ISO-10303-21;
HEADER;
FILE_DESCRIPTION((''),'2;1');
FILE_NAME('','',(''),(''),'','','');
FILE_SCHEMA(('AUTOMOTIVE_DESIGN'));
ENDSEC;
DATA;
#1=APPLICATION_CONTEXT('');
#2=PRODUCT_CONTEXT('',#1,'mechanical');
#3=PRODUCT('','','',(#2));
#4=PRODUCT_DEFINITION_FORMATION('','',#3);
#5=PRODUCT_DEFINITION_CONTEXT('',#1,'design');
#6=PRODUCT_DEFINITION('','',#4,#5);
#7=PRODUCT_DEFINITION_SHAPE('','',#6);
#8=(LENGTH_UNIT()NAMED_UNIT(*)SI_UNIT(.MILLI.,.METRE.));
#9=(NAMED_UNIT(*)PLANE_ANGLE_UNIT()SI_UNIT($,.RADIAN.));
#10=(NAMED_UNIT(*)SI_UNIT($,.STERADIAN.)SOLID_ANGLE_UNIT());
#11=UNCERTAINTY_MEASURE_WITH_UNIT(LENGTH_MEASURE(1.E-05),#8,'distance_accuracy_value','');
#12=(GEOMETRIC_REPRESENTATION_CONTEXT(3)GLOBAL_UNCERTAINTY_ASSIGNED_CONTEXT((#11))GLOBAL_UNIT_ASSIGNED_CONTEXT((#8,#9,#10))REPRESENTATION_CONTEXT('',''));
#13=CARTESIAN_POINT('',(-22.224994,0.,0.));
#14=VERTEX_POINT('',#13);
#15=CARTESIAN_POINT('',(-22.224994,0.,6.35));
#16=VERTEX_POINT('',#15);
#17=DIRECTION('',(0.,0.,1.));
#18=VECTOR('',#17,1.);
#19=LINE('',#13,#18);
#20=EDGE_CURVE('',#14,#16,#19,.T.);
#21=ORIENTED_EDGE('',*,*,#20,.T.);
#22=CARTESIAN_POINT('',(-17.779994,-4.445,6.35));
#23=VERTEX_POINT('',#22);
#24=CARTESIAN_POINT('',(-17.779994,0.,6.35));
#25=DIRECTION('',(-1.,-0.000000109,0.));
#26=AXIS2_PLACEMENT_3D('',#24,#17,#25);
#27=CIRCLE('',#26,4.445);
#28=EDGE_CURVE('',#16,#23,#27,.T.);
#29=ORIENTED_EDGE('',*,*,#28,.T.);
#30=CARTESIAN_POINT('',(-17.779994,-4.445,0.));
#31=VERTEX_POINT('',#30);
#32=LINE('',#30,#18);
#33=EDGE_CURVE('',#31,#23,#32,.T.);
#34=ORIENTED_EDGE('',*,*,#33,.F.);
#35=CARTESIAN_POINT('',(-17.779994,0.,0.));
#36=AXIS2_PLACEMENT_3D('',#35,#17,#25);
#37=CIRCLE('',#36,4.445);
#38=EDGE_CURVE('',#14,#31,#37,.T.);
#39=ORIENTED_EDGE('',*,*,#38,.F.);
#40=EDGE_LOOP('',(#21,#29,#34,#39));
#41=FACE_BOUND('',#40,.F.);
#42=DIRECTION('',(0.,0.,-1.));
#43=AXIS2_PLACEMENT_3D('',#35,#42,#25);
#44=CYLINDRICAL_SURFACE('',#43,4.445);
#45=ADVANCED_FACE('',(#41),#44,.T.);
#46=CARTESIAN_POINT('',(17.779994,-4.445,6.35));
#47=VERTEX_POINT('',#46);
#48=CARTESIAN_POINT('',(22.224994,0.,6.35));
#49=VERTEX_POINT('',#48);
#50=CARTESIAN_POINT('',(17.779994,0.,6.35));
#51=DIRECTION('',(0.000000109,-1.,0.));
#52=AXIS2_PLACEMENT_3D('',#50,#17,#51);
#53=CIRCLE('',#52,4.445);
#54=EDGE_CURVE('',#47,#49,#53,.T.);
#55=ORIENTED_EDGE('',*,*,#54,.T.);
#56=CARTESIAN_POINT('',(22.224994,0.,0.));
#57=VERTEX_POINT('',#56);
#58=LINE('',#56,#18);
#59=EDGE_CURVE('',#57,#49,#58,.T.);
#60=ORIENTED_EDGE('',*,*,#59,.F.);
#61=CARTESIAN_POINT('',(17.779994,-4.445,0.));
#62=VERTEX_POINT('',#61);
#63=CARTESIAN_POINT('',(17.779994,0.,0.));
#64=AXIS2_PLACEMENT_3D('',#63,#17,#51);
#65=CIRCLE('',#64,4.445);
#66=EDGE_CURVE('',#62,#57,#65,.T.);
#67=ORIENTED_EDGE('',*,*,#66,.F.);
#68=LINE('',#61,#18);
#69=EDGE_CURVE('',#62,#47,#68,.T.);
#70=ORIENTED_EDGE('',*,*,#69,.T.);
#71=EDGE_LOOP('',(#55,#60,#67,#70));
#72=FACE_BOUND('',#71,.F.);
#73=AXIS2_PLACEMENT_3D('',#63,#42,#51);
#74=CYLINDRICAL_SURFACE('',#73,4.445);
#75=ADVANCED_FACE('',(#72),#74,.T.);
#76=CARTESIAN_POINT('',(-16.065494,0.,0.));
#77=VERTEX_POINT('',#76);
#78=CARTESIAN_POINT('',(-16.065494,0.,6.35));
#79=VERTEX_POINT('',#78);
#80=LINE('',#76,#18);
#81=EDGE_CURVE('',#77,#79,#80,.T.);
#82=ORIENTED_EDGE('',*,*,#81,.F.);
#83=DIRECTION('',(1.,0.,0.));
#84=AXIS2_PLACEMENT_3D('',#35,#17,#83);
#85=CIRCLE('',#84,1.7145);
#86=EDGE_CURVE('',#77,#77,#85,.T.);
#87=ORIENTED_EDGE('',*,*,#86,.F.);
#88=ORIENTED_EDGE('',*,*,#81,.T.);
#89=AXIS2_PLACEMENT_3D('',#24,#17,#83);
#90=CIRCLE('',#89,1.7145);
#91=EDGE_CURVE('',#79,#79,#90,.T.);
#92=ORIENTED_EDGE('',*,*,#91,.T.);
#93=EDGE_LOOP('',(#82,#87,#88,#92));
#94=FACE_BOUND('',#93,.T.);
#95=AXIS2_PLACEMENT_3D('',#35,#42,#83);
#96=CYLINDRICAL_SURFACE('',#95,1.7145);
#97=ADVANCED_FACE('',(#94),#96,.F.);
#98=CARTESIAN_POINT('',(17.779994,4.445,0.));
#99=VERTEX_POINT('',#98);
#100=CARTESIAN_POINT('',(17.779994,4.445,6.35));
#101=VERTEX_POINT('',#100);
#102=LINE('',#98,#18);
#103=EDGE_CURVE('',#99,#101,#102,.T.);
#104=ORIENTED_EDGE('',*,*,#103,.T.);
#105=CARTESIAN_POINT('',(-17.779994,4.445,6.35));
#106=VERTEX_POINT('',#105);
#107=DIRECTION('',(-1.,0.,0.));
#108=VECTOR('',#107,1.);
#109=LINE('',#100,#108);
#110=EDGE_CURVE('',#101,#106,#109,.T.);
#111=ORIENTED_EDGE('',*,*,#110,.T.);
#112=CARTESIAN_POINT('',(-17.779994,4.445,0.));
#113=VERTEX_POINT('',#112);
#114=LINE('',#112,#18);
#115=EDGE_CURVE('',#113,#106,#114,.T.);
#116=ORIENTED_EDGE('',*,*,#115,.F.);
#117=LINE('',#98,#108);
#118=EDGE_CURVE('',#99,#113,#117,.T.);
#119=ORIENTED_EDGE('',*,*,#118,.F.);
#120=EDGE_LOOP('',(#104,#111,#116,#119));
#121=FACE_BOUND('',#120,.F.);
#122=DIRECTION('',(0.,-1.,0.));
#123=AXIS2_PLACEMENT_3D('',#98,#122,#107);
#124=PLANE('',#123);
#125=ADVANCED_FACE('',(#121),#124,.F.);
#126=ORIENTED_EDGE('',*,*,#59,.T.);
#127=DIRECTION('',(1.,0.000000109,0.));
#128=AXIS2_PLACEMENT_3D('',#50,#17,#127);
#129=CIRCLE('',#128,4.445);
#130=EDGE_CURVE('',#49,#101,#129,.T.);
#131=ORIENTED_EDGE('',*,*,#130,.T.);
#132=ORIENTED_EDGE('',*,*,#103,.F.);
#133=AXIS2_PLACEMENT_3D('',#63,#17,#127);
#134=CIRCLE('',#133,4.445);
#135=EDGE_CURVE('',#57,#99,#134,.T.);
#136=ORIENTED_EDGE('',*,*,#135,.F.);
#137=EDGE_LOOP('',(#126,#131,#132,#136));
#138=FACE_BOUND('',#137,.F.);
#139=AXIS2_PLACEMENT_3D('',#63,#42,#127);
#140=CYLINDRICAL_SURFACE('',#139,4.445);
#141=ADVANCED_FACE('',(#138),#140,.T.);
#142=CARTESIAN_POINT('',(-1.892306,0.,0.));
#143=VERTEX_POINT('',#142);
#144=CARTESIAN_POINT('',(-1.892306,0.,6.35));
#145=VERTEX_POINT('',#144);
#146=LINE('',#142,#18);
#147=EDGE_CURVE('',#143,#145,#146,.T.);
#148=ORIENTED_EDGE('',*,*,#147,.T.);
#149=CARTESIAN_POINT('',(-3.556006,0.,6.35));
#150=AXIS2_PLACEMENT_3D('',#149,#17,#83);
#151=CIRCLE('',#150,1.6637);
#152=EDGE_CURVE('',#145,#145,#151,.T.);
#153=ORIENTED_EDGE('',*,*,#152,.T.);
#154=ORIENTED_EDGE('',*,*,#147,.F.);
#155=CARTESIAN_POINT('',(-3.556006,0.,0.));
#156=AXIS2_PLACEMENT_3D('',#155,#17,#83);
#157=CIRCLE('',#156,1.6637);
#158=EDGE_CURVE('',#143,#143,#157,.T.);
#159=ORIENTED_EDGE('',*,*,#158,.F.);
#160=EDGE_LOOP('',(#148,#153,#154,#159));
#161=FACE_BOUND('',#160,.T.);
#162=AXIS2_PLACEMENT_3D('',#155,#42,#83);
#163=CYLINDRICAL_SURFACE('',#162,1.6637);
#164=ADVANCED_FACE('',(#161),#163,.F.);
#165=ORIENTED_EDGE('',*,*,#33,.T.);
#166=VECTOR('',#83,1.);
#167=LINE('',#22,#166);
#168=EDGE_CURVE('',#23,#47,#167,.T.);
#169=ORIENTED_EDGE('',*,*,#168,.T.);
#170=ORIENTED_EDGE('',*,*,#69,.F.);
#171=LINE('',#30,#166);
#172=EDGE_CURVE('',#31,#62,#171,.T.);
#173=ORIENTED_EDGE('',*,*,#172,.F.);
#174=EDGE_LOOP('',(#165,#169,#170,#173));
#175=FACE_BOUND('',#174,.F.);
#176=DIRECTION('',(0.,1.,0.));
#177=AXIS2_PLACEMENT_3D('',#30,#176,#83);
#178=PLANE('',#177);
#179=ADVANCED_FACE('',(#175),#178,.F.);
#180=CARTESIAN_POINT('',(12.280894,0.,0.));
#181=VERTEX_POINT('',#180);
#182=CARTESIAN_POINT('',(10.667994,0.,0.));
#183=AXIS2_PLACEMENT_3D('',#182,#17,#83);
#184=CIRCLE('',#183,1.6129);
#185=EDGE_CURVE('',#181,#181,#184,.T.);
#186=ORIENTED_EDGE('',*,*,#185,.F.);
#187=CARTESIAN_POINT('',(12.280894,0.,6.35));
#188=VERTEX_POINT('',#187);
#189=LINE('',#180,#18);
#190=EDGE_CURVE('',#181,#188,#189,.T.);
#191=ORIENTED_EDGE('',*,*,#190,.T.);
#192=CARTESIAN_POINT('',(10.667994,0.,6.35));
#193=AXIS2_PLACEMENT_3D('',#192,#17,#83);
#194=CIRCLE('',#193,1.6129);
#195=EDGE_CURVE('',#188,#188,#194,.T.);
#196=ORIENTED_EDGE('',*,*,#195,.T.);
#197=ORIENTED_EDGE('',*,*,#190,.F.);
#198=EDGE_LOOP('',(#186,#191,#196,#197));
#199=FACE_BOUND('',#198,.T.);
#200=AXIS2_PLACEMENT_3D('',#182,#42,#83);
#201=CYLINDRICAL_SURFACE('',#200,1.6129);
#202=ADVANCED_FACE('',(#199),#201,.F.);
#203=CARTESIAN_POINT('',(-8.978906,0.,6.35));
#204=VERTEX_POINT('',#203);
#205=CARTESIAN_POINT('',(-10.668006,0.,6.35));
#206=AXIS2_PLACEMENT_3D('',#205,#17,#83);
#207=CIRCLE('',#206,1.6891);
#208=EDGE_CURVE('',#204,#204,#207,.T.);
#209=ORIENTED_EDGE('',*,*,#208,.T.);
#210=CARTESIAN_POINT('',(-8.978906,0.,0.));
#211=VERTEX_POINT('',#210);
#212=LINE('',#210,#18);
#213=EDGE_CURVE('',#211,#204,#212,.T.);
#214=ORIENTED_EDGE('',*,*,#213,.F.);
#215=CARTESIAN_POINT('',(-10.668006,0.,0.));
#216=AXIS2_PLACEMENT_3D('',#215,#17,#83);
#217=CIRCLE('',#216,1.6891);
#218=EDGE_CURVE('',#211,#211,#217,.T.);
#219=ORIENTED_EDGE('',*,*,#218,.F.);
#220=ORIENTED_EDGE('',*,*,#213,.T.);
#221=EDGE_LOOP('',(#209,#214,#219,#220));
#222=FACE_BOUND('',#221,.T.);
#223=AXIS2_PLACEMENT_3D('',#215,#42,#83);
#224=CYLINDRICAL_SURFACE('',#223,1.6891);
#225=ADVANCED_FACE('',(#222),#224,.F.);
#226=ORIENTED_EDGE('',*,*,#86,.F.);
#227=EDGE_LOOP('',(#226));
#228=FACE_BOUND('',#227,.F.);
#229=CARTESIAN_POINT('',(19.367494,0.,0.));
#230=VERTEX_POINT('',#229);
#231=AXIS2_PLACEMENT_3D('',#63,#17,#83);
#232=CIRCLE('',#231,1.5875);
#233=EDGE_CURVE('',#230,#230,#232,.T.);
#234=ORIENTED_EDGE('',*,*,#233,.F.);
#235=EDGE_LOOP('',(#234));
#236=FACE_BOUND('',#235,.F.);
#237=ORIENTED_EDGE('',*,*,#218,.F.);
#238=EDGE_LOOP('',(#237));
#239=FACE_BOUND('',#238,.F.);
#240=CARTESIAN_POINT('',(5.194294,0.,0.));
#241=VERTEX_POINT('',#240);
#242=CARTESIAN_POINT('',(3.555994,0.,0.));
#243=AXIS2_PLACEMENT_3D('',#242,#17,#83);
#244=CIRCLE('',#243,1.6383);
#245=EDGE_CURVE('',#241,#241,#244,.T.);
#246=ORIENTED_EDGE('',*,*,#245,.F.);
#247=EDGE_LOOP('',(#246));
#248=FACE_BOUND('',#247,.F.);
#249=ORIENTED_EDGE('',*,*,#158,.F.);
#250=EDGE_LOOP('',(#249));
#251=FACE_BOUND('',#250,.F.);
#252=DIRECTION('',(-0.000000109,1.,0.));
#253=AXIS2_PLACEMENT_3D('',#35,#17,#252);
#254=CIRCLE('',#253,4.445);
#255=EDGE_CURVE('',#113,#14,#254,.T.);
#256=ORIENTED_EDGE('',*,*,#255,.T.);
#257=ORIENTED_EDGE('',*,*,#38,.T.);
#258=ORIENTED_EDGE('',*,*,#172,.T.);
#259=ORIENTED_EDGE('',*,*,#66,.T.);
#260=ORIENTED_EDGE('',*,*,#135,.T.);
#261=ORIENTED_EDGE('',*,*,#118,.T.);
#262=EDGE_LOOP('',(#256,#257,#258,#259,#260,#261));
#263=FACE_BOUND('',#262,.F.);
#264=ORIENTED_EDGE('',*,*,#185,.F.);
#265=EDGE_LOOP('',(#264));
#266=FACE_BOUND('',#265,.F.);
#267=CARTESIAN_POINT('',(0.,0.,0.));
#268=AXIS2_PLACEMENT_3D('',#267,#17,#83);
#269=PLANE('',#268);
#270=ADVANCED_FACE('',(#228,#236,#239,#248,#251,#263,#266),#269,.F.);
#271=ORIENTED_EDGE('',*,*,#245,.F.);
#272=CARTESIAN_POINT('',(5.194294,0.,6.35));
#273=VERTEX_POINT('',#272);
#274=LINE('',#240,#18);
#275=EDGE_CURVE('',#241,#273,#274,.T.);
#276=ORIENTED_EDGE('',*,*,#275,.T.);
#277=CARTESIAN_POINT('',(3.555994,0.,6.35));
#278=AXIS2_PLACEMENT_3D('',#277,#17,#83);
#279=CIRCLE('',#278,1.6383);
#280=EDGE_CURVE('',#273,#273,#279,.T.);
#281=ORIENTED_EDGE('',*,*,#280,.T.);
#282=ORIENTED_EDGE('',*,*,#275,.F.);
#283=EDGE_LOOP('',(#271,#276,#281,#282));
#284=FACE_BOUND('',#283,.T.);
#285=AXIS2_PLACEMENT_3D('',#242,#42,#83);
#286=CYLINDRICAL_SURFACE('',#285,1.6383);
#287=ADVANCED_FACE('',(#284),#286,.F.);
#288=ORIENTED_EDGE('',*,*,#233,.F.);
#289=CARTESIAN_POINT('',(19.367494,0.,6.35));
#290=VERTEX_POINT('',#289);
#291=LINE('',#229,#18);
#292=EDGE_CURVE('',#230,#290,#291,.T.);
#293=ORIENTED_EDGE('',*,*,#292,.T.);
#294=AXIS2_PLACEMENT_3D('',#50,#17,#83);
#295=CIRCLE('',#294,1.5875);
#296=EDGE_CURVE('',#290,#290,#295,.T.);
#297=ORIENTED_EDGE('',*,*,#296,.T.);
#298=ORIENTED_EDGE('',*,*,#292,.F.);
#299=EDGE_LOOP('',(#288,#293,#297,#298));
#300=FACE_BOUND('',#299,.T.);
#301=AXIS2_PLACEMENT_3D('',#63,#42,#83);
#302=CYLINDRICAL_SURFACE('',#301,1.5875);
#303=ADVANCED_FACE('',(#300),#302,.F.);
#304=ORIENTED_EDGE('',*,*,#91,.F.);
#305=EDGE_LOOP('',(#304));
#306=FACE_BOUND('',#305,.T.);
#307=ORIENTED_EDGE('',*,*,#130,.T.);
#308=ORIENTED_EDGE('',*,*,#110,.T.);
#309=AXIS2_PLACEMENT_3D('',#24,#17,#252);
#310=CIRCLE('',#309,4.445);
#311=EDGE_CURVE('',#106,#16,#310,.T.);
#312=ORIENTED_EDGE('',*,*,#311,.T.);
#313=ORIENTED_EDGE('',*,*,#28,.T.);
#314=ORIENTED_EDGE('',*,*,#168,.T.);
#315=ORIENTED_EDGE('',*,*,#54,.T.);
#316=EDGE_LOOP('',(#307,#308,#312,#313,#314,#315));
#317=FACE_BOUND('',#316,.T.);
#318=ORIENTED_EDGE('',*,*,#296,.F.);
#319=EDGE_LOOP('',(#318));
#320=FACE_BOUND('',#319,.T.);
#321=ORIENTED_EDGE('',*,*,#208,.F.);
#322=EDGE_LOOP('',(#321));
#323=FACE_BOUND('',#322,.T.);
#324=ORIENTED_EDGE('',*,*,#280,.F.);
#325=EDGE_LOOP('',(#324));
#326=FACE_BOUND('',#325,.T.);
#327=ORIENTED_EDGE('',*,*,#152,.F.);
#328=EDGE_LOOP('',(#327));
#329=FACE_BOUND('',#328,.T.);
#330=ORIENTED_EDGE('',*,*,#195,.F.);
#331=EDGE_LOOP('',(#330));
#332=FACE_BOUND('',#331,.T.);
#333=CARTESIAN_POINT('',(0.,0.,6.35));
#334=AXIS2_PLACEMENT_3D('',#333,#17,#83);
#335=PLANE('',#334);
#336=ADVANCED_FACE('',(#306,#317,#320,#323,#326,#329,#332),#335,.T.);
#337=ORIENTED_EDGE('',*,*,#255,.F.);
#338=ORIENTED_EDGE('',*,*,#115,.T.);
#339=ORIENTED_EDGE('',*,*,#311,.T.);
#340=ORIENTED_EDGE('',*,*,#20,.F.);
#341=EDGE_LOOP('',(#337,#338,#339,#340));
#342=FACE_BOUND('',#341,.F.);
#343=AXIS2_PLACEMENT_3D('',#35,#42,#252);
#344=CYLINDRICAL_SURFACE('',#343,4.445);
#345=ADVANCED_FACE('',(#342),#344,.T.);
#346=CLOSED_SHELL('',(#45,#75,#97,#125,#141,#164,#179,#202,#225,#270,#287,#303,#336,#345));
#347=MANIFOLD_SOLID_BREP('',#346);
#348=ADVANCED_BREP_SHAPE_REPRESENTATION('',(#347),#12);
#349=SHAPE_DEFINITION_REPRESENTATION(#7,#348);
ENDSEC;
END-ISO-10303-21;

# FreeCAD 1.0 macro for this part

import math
import FreeCAD as App
import Part
import Sketcher
from FreeCAD import Vector
Q = App.Units.Quantity

doc = App.newDocument("Part")
body = doc.addObject("PartDesign::Body", "Body")

sketch1 = doc.addObject("Sketcher::SketchObject", "Sketch")
body.addObject(sketch1)
sketch1.AttachmentSupport = (doc.XY_Plane, [""])
sketch1.MapMode = "FlatFace"
sketch1.addGeometry(Part.LineSegment(Vector(17.8, 4.4, 0), Vector(-17.8, 4.4, 0)), False)
sketch1.addGeometry(Part.ArcOfCircle(Part.Circle(Vector(-17.8, 0, 0), Vector(0, 0, 1), 4.4), math.radians(90), math.radians(180)), False)
sketch1.addGeometry(Part.ArcOfCircle(Part.Circle(Vector(-17.8, 0, 0), Vector(0, 0, 1), 4.4), math.radians(-180), math.radians(-90)), False)
sketch1.addGeometry(Part.LineSegment(Vector(-17.8, -4.4, 0), Vector(17.8, -4.4, 0)), False)
sketch1.addGeometry(Part.ArcOfCircle(Part.Circle(Vector(17.8, 0, 0), Vector(0, 0, 1), 4.4), math.radians(-90), math.radians(0)), False)
sketch1.addGeometry(Part.ArcOfCircle(Part.Circle(Vector(17.8, 0, 0), Vector(0, 0, 1), 4.4), math.radians(0), math.radians(90)), False)
sketch1.addGeometry(Part.Circle(Vector(-17.8, 0, 0), Vector(0, 0, 1), 1.7), False)
sketch1.addGeometry(Part.Circle(Vector(-10.7, 0, 0), Vector(0, 0, 1), 1.7), False)
sketch1.addGeometry(Part.Circle(Vector(-3.6, 0, 0), Vector(0, 0, 1), 1.7), False)
sketch1.addGeometry(Part.Circle(Vector(3.6, 0, 0), Vector(0, 0, 1), 1.6), False)
sketch1.addGeometry(Part.Circle(Vector(10.7, 0, 0), Vector(0, 0, 1), 1.6), False)
sketch1.addGeometry(Part.Circle(Vector(17.8, 0, 0), Vector(0, 0, 1), 1.6), False)
sketch1.addConstraint(Sketcher.Constraint("Tangent", 0, 2, 1, 1))
sketch1.addConstraint(Sketcher.Constraint("Tangent", 1, 2, 2, 1))
sketch1.addConstraint(Sketcher.Constraint("Tangent", 2, 2, 3, 1))
sketch1.addConstraint(Sketcher.Constraint("Tangent", 3, 2, 4, 1))
sketch1.addConstraint(Sketcher.Constraint("Tangent", 4, 2, 5, 1))
sketch1.addConstraint(Sketcher.Constraint("Tangent", 5, 2, 0, 1))
sketch1.addConstraint(Sketcher.Constraint("Horizontal", 0))
sketch1.addConstraint(Sketcher.Constraint("Horizontal", 3))
sketch1.addConstraint(Sketcher.Constraint("Coincident", 6, 3, 1, 3))
sketch1.addConstraint(Sketcher.Constraint("Coincident", 11, 3, 4, 3))
sketch1.addConstraint(Sketcher.Constraint("Equal", 1, 2))
sketch1.addConstraint(Sketcher.Constraint("Equal", 2, 4))
sketch1.addConstraint(Sketcher.Constraint("Symmetric", 1, 3, 4, 3, -1, 1))
sketch1.addConstraint(Sketcher.Constraint("PointOnObject", 7, 3, -1))
sketch1.addConstraint(Sketcher.Constraint("PointOnObject", 8, 3, -1))
sketch1.addConstraint(Sketcher.Constraint("PointOnObject", 9, 3, -1))
sketch1.addConstraint(Sketcher.Constraint("PointOnObject", 10, 3, -1))
sketch1.addConstraint(Sketcher.Constraint("PointOnObject", 1, 2, -1))
sketch1.addConstraint(Sketcher.Constraint("PointOnObject", 4, 2, -1))
sketch1.addConstraint(Sketcher.Constraint("Diameter", 6, Q("0.135 in")))
sketch1.addConstraint(Sketcher.Constraint("Diameter", 7, Q("0.133 in")))
sketch1.addConstraint(Sketcher.Constraint("Diameter", 8, Q("0.131 in")))
sketch1.addConstraint(Sketcher.Constraint("Diameter", 9, Q("0.129 in")))
sketch1.addConstraint(Sketcher.Constraint("Diameter", 10, Q("0.127 in")))
sketch1.addConstraint(Sketcher.Constraint("Diameter", 11, Q("0.125 in")))
sketch1.addConstraint(Sketcher.Constraint("Radius", 1, Q("0.175 in")))
sketch1.addConstraint(Sketcher.Constraint("DistanceX", 7, 3, 4, 3, Q("1.12 in")))
sketch1.addConstraint(Sketcher.Constraint("DistanceX", 7, 3, 8, 3, Q("0.28 in")))
sketch1.addConstraint(Sketcher.Constraint("DistanceX", 8, 3, 9, 3, Q("0.28 in")))
sketch1.addConstraint(Sketcher.Constraint("DistanceX", 10, 3, 4, 3, Q("0.28 in")))
sketch1.addConstraint(Sketcher.Constraint("DistanceX", 0, 2, 0, 1, 35.559988))
pad1 = doc.addObject("PartDesign::Pad", "Pad")
body.addObject(pad1)
pad1.Profile = sketch1
pad1.Length = Q("0.25 in")

doc.recompute()
